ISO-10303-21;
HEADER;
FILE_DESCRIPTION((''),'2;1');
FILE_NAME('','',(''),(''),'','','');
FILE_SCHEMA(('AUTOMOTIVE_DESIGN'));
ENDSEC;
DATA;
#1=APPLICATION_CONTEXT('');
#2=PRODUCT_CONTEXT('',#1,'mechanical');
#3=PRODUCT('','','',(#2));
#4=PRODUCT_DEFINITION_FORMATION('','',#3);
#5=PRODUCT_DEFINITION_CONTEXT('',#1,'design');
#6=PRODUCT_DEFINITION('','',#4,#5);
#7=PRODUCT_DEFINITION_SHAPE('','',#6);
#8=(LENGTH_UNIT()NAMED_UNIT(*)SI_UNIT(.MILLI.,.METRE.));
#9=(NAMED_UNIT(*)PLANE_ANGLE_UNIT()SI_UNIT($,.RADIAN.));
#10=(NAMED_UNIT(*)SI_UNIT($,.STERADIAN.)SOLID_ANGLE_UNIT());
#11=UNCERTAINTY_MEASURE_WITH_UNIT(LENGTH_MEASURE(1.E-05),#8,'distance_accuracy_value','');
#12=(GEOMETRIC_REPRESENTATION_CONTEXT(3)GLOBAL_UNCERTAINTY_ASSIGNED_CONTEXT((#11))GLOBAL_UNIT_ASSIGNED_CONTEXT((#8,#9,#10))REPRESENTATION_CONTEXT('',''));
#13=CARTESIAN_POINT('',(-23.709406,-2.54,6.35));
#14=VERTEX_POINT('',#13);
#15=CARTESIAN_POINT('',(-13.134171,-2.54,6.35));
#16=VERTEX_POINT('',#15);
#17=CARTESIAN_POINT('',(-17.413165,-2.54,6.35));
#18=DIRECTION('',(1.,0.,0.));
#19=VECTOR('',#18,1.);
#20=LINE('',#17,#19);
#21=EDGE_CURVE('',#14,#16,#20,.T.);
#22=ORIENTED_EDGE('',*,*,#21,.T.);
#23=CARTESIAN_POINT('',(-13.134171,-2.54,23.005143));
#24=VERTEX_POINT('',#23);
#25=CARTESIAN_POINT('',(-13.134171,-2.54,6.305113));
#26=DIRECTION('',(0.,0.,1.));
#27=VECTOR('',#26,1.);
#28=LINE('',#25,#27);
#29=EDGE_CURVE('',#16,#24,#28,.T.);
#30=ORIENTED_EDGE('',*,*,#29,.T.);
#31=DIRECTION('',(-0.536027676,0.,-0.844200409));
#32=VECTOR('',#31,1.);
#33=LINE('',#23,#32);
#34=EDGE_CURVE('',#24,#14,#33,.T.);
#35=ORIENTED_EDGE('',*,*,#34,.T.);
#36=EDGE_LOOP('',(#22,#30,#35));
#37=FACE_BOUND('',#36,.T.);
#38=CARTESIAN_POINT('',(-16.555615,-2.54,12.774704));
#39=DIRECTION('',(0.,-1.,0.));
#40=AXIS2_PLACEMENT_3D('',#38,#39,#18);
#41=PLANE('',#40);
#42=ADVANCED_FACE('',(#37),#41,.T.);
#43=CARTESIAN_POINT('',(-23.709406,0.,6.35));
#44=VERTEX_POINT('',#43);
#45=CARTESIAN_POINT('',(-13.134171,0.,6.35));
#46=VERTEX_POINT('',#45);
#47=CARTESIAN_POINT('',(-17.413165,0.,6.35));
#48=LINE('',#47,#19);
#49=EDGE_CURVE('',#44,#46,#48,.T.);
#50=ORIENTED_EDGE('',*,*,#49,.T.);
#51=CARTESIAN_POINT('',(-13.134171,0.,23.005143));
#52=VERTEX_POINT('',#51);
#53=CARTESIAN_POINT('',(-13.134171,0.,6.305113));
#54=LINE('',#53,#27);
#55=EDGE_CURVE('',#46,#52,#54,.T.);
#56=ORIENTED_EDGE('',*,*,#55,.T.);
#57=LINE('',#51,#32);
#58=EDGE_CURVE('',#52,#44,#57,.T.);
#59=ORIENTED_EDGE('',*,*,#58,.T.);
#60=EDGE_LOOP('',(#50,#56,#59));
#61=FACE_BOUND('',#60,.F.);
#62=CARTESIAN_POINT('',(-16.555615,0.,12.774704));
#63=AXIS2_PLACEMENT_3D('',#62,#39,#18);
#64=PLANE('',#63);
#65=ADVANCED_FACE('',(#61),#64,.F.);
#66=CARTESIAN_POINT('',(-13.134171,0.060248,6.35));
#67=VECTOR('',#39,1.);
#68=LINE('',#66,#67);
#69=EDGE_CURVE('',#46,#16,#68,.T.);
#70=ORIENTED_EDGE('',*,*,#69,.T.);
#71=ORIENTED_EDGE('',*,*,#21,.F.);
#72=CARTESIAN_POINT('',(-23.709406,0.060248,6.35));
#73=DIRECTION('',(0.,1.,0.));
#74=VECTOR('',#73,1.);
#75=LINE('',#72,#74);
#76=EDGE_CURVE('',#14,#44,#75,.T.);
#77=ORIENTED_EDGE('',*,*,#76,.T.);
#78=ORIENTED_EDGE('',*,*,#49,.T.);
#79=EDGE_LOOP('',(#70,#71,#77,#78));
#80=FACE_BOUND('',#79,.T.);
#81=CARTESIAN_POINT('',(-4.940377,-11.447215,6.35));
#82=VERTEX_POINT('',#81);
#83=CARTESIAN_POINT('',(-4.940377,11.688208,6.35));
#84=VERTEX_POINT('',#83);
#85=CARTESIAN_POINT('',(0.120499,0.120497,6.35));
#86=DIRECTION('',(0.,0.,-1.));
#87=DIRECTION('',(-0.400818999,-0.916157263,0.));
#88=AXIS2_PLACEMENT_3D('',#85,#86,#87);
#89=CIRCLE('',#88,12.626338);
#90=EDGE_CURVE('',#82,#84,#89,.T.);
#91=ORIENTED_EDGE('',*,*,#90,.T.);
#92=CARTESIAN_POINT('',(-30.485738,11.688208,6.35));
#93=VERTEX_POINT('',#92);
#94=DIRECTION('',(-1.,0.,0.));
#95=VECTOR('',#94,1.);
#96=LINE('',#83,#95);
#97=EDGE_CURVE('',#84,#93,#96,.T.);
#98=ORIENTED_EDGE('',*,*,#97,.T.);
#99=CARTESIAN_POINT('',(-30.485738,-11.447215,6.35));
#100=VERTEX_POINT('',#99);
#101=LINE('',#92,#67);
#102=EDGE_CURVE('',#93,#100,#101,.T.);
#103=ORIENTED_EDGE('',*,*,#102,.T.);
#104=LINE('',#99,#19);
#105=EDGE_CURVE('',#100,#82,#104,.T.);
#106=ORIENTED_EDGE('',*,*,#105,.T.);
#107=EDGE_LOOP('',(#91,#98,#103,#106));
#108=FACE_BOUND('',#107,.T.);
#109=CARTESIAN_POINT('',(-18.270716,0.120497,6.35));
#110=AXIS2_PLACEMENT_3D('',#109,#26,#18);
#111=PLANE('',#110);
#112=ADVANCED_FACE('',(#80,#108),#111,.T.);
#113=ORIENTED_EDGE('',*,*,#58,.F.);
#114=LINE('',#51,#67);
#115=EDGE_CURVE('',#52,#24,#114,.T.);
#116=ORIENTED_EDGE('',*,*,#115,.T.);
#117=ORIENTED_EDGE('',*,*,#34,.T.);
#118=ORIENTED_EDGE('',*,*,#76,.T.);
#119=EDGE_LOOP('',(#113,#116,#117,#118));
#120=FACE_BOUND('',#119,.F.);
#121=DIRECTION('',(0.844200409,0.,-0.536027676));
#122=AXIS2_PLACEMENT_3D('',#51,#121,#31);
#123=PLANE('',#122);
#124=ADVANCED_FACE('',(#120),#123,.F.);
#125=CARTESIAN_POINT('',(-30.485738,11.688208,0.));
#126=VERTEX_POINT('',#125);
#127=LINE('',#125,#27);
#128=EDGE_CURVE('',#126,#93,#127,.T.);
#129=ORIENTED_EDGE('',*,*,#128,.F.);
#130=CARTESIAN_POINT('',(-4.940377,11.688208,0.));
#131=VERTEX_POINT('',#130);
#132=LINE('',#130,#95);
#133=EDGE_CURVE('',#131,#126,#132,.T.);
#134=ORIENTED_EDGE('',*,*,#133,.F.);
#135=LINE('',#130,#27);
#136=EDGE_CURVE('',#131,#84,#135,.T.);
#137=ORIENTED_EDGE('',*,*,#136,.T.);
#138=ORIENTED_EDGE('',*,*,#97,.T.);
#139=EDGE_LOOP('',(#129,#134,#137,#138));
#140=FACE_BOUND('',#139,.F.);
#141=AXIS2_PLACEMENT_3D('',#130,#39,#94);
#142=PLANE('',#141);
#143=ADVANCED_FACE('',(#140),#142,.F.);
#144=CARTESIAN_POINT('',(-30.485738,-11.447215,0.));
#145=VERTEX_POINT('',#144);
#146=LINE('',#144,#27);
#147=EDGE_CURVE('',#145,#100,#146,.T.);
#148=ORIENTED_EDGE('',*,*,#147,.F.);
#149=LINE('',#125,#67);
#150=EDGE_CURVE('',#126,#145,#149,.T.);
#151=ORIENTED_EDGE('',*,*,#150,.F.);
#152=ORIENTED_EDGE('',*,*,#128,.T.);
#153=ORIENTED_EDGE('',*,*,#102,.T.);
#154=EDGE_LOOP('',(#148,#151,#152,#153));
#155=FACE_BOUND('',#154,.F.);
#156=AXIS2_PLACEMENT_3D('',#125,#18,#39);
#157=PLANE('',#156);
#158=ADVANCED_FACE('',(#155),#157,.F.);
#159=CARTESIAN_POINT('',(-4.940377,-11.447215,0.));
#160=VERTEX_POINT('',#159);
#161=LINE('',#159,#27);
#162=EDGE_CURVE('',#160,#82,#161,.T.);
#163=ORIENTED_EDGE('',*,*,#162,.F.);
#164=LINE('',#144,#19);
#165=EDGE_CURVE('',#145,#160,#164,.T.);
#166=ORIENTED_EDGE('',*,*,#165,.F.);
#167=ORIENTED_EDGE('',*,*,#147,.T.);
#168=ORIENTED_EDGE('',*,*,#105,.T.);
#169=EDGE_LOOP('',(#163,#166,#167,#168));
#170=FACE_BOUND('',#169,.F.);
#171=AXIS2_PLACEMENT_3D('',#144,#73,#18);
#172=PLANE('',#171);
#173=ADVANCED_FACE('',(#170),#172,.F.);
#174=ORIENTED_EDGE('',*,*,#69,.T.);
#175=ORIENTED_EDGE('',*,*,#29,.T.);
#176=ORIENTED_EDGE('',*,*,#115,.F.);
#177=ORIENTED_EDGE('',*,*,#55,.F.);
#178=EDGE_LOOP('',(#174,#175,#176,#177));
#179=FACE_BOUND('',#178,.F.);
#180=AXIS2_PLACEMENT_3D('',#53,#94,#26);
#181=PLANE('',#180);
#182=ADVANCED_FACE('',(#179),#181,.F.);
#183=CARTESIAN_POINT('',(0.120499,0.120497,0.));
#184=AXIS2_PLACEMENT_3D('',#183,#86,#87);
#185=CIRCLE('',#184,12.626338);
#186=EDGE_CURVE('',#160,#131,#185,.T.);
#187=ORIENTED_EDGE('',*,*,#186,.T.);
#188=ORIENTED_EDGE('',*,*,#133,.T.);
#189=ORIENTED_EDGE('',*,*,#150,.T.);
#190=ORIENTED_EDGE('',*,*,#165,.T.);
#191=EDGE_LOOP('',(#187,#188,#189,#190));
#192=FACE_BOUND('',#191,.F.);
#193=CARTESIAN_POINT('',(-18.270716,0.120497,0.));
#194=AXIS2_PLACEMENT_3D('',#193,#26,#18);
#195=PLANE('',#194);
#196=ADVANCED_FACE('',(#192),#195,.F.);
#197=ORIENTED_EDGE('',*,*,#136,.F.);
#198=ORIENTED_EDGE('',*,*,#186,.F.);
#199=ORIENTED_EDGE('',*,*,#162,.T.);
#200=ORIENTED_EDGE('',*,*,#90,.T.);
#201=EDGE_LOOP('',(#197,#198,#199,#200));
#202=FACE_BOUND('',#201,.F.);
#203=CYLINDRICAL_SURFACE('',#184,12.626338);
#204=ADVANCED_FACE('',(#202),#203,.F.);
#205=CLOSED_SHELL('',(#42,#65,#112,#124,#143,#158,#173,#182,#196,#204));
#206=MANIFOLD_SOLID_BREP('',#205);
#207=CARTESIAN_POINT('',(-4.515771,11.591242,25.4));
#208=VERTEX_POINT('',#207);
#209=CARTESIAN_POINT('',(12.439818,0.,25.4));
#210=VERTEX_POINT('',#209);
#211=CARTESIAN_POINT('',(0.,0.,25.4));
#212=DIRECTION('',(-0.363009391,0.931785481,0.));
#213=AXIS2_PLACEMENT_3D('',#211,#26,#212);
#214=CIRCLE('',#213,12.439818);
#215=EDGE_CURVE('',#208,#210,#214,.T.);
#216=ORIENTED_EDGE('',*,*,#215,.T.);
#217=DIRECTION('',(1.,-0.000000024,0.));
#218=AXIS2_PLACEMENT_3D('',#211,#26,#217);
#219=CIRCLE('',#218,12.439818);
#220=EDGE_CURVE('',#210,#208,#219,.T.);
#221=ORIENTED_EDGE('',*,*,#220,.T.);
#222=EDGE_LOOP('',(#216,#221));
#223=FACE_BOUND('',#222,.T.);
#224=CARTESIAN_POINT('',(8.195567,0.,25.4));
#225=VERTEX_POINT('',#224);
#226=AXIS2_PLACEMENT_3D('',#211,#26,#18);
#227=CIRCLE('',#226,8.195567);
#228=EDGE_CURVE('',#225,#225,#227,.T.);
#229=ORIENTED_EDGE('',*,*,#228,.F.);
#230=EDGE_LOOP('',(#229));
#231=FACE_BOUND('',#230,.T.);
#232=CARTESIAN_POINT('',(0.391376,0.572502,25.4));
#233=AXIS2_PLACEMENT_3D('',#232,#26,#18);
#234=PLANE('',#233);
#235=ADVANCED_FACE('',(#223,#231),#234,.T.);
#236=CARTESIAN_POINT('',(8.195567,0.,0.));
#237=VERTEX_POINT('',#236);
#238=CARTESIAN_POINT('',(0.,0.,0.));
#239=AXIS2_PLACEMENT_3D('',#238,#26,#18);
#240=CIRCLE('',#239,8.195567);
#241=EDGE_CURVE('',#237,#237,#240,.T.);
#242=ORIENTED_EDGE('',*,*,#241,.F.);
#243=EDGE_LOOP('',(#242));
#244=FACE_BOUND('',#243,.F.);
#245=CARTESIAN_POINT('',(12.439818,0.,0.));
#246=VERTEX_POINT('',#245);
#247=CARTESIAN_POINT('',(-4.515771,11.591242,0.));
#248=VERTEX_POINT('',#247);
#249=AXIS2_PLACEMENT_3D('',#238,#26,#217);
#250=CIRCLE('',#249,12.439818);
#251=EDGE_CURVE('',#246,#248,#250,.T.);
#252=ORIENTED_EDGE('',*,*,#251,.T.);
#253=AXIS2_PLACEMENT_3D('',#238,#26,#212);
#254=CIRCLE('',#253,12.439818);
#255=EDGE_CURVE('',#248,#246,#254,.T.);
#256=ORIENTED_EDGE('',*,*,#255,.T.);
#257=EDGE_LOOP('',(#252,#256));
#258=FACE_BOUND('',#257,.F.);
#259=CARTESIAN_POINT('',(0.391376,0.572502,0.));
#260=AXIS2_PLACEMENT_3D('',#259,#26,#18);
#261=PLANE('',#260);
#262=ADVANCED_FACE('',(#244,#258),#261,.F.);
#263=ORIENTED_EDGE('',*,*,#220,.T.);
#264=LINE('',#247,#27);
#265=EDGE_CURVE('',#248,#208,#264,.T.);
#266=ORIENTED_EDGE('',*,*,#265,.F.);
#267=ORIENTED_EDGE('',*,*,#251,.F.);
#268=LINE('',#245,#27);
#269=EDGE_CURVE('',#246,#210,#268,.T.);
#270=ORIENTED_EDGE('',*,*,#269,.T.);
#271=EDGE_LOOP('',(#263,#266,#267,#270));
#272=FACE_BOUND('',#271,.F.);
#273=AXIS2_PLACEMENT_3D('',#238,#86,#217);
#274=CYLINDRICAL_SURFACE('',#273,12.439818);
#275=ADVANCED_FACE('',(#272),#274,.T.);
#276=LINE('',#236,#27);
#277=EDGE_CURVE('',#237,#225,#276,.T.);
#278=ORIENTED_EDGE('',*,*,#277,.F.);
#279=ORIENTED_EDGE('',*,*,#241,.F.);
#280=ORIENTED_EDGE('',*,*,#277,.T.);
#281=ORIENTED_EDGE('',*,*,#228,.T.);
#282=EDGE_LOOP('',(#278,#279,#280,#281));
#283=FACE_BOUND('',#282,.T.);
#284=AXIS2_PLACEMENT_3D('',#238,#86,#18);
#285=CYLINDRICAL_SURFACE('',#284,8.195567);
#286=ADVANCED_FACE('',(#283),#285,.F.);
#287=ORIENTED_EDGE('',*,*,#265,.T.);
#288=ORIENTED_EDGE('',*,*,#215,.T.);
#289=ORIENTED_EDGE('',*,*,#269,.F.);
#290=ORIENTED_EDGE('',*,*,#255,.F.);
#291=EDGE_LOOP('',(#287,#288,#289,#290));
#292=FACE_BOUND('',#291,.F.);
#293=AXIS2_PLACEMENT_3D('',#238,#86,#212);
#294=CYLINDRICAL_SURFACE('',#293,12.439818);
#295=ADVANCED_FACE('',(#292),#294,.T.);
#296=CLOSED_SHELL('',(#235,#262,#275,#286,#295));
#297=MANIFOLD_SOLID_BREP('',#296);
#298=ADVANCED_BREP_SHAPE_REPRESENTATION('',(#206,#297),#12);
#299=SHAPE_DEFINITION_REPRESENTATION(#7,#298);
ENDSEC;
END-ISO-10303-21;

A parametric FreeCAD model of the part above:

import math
import FreeCAD as App
import Part
import Sketcher

V = App.Vector
Q = App.Units.Quantity

doc = App.newDocument("Part")
body = doc.addObject("PartDesign::Body", "Body")

sketch1 = body.newObject("Sketcher::SketchObject", "Sketch")
sketch1.AttachmentSupport = (doc.getObject("XY_Plane"), [""])
sketch1.MapMode = "FlatFace"
sketch1.addGeometry([
    Part.ArcOfCircle(Part.Circle(V(0, 0, 0), V(0, 0, 1), 12), math.radians(111), math.radians(360)),
    Part.ArcOfCircle(Part.Circle(V(0, 0, 0), V(0, 0, 1), 12), math.radians(0), math.radians(111)),
    Part.Circle(V(0, 0, 0), V(0, 0, 1), 8),
], False)
sketch1.addConstraint([
    Sketcher.Constraint("Tangent", 0, 1, 1, 2),
    Sketcher.Constraint("Coincident", 1, 1, 0, 2),
    Sketcher.Constraint("Coincident", 0, 3, -1, 1),
    Sketcher.Constraint("Coincident", 2, 3, -1, 1),
    Sketcher.Constraint("PointOnObject", 1, 1, -1),
    Sketcher.Constraint("Radius", 0, 12.439818),
    Sketcher.Constraint("Diameter", 2, 16.391134),
    Sketcher.Constraint("DistanceX", 0, 1, -1, 1, 4.515771),
])
pad1 = body.newObject("PartDesign::Pad", "Pad")
pad1.Profile = sketch1
pad1.Length = Q("1 in")
body2 = doc.addObject("PartDesign::Body", "Body001")

sketch2 = body2.newObject("Sketcher::SketchObject", "Sketch001")
sketch2.AttachmentSupport = (doc.getObject("XY_Plane001"), [""])
sketch2.MapMode = "FlatFace"
sketch2.addGeometry([
    Part.ArcOfCircle(Part.Circle(V(0, 0, 0), V(0, 0, 1), 13), math.radians(114), math.radians(246)),
    Part.LineSegment(V(-5, 12, 0), V(-30, 12, 0)),
    Part.LineSegment(V(-30, 12, 0), V(-30, -11, 0)),
    Part.LineSegment(V(-30, -11, 0), V(-5, -11, 0)),
], False)
sketch2.addConstraint([
    Sketcher.Constraint("Coincident", 0, 1, 1, 1),
    Sketcher.Constraint("Coincident", 1, 2, 2, 1),
    Sketcher.Constraint("Coincident", 2, 2, 3, 1),
    Sketcher.Constraint("Coincident", 3, 2, 0, 2),
    Sketcher.Constraint("Horizontal", 1),
    Sketcher.Constraint("Vertical", 2),
    Sketcher.Constraint("Horizontal", 3),
    Sketcher.Constraint("Vertical", 0, 1, 3, 2),
    Sketcher.Constraint("Radius", 0, Q("0.4970999 in")),
    Sketcher.Constraint("DistanceX", 1, 2, 1, 1, 25.545361),
    Sketcher.Constraint("DistanceX", -1, 1, 0, 3, 0.120499),
    Sketcher.Constraint("DistanceY", 2, 2, 2, 1, 23.135423),
    Sketcher.Constraint("DistanceY", -1, 1, 0, 1, 11.688208),
])
pad2 = body2.newObject("PartDesign::Pad", "Pad001")
pad2.Profile = sketch2
pad2.Length = Q("0.25 in")

sketch3 = body2.newObject("Sketcher::SketchObject", "Sketch002")
sketch3.AttachmentSupport = (doc.getObject("XZ_Plane001"), [""])
sketch3.MapMode = "FlatFace"
sketch3.addGeometry([
    Part.LineSegment(V(-13, 23, 0), V(-24, 6, 0)),
    Part.LineSegment(V(-24, 6, 0), V(-13, 6, 0)),
    Part.LineSegment(V(-13, 6, 0), V(-13, 23, 0)),
], False)
sketch3.addConstraint([
    Sketcher.Constraint("Coincident", 0, 2, 1, 1),
    Sketcher.Constraint("Coincident", 1, 2, 2, 1),
    Sketcher.Constraint("Coincident", 2, 2, 0, 1),
    Sketcher.Constraint("Horizontal", 1),
    Sketcher.Constraint("Vertical", 2),
    Sketcher.Constraint("DistanceY", 2, 1, 2, 2, 16.70003),
    Sketcher.Constraint("Distance", 0, 19.782068),
    Sketcher.Constraint("DistanceX", 1, 2, -1, 1, 13.134171),
    Sketcher.Constraint("DistanceY", -1, 1, 0, 2, 6.305113),
])
pad3 = body2.newObject("PartDesign::Pad", "Pad002")
pad3.Profile = sketch3
pad3.Length = Q("0.1 in")

doc.recompute()
